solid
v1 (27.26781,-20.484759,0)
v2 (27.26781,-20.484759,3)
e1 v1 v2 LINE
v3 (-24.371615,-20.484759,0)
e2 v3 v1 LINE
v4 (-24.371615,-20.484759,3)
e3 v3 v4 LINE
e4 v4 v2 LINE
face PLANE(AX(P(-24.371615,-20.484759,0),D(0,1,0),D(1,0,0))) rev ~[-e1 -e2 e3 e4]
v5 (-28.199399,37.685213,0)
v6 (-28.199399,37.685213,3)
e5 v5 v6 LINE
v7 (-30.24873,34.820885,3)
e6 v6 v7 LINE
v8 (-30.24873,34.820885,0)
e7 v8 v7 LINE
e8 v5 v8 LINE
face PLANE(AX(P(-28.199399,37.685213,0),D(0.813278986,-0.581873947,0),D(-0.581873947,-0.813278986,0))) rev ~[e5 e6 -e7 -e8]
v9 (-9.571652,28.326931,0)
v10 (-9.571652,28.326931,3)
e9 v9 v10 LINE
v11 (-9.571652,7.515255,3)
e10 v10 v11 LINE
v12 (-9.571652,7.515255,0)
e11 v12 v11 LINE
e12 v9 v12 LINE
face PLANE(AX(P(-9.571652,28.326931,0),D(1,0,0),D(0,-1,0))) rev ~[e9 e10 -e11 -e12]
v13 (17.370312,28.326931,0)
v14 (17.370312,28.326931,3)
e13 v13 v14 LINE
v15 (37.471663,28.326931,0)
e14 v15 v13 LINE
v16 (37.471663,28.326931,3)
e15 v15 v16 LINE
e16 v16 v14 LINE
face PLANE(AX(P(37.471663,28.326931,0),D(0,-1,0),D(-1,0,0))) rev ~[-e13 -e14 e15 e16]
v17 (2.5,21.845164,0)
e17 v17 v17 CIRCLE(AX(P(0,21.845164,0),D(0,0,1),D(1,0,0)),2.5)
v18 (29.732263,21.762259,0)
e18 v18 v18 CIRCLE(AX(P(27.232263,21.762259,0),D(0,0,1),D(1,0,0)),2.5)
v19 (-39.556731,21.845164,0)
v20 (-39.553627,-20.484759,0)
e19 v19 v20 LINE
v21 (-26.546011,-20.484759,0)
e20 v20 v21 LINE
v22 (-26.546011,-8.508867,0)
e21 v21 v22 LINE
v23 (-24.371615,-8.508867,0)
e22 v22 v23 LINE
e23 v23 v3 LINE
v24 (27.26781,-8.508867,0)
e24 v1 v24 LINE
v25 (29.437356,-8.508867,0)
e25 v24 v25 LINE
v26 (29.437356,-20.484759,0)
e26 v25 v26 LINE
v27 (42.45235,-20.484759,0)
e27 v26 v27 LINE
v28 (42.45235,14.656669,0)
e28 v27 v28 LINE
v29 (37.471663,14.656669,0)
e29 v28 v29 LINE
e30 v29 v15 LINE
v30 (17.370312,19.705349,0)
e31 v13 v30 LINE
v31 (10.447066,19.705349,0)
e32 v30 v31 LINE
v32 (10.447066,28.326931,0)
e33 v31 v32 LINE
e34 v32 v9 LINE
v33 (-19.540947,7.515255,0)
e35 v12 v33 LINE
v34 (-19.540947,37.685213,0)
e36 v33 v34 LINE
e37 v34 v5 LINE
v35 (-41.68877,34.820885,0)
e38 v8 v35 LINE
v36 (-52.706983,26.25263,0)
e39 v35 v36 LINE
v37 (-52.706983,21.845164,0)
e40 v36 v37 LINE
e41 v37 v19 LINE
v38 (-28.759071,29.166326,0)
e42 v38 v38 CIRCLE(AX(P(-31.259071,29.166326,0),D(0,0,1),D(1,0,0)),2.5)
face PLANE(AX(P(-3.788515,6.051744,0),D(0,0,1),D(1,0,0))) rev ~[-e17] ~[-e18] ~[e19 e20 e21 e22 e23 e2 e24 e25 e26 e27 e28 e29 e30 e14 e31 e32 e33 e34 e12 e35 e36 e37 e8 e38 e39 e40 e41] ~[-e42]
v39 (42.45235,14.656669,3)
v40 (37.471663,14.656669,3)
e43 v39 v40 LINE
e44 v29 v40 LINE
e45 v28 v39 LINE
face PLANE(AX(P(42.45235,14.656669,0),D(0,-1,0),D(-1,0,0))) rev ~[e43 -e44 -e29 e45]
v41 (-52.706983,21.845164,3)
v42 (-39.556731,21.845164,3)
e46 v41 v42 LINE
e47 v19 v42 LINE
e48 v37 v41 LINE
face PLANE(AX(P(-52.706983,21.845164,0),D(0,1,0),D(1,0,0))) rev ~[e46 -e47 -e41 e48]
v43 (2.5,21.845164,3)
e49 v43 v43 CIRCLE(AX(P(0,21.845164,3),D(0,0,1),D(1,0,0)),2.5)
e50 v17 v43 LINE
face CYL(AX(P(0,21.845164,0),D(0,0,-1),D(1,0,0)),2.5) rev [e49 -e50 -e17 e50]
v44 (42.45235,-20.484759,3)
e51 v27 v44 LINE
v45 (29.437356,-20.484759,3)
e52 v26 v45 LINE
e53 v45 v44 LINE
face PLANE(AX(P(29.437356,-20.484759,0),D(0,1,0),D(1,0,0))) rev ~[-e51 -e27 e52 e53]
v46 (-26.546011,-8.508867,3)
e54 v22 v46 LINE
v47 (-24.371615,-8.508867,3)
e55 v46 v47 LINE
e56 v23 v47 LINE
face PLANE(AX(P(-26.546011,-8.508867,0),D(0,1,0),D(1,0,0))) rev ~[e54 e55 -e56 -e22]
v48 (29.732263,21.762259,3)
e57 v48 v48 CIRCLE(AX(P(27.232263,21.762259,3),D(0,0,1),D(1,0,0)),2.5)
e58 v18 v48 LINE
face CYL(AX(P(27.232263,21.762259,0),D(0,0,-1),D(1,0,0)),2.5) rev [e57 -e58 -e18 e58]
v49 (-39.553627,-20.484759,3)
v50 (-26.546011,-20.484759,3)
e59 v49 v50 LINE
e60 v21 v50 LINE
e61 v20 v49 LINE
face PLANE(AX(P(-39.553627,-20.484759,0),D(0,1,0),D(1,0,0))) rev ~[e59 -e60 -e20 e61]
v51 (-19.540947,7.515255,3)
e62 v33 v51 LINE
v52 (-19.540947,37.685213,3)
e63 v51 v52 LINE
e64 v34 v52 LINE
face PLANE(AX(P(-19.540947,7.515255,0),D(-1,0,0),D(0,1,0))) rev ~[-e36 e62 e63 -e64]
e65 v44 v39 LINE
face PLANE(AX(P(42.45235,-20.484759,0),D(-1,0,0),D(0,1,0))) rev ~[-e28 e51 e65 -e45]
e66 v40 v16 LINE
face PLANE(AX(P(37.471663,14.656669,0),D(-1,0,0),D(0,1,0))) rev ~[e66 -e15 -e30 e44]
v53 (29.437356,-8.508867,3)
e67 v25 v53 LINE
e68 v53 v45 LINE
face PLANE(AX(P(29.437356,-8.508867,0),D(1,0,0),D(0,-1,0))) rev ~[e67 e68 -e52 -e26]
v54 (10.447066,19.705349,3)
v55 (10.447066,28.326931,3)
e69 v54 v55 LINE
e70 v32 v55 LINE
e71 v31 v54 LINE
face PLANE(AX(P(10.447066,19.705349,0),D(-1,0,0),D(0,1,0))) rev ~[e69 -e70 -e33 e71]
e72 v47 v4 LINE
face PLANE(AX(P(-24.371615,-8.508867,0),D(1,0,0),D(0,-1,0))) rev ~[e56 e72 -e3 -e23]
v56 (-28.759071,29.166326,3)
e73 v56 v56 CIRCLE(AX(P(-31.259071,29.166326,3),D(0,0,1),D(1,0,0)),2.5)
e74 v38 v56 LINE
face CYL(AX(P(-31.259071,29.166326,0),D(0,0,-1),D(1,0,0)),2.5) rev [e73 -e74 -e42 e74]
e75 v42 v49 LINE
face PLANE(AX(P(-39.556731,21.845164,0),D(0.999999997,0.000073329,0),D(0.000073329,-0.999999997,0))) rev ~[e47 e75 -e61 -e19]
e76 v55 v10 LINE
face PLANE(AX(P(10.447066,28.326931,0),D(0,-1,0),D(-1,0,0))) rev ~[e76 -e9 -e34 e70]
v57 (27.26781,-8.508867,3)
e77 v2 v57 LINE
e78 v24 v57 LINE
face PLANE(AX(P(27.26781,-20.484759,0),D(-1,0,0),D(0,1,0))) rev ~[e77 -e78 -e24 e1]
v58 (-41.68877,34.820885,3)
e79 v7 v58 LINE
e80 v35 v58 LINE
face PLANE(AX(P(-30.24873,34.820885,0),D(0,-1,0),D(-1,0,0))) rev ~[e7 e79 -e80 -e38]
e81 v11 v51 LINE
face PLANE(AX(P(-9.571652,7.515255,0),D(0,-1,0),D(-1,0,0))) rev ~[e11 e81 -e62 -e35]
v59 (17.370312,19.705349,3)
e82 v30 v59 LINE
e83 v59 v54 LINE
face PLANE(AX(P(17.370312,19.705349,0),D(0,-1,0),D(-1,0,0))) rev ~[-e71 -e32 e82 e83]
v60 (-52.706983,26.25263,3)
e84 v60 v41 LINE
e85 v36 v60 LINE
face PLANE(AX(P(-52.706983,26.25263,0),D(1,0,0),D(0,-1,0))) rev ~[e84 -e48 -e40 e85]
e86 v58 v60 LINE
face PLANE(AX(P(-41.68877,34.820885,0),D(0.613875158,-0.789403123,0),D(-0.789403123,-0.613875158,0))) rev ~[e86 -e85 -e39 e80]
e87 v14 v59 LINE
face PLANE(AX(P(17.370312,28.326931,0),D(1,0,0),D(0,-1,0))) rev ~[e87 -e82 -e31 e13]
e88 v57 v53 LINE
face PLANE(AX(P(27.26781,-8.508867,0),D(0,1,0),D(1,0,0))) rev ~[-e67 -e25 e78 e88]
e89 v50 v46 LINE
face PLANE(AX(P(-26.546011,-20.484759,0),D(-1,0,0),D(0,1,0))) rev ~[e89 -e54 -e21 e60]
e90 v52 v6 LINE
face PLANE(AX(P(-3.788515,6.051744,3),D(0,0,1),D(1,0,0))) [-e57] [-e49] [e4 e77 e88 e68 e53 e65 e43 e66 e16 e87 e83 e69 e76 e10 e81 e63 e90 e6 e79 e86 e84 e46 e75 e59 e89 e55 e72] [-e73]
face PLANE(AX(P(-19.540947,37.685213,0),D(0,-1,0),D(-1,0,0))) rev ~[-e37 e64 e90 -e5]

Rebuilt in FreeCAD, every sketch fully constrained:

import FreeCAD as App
import Part
import Sketcher

V = App.Vector
Q = App.Units.Quantity


def add_polygon(sketch, points):
    """Adds a closed chain of lines whose ends are joined by coincident constraints."""
    first, n = sketch.GeometryCount, len(points)
    for a, b in zip(points, points[1:] + points[:1]):
        sketch.addGeometry(Part.LineSegment(App.Vector(*a, 0), App.Vector(*b, 0)), False)
    for i in range(n):
        sketch.addConstraint(Sketcher.Constraint("Coincident", first + i, 2, first + (i + 1) % n, 1))

doc = App.newDocument("Part")
body = doc.addObject("PartDesign::Body", "Body")

# Sketch on XY plane
sketch1 = body.newObject("Sketcher::SketchObject", "Sketch")
sketch1.AttachmentSupport = (doc.getObject("XY_Plane"), [""])
sketch1.MapMode = "FlatFace"
add_polygon(sketch1, [(-39.6, 21.8), (-39.6, -20.5), (-26.5, -20.5), (-26.5, -8.5), (-24.4, -8.5), (-24.4, -20.5), (27.3, -20.5), (27.3, -8.5), (29.4, -8.5), (29.4, -20.5), (42.5, -20.5), (42.5, 14.7), (37.5, 14.7), (37.5, 28.3), (17.4, 28.3), (17.4, 19.7), (10.4, 19.7), (10.4, 28.3), (-9.6, 28.3), (-9.6, 7.5), (-19.5, 7.5), (-19.5, 37.7), (-28.2, 37.7), (-30.2, 34.8), (-41.7, 34.8), (-52.7, 26.3), (-52.7, 21.8)])  # lines 0-26
sketch1.addGeometry(Part.Circle(V(0, 21.8, 0), V(0, 0, 1), 2.5), False)  # 27
sketch1.addGeometry(Part.Circle(V(27.2, 21.8, 0), V(0, 0, 1), 2.5), False)  # 28
sketch1.addGeometry(Part.Circle(V(-31.3, 29.2, 0), V(0, 0, 1), 2.5), False)  # 29
sketch1.addConstraint([
    Sketcher.Constraint("Horizontal", 1),
    Sketcher.Constraint("Vertical", 2),
    Sketcher.Constraint("Horizontal", 3),
    Sketcher.Constraint("Vertical", 4),
    Sketcher.Constraint("Horizontal", 5),
    Sketcher.Constraint("Vertical", 6),
    Sketcher.Constraint("Horizontal", 7),
    Sketcher.Constraint("Vertical", 8),
    Sketcher.Constraint("Horizontal", 9),
    Sketcher.Constraint("Vertical", 10),
    Sketcher.Constraint("Horizontal", 11),
    Sketcher.Constraint("Vertical", 12),
    Sketcher.Constraint("Horizontal", 13),
    Sketcher.Constraint("Vertical", 14),
    Sketcher.Constraint("Horizontal", 15),
    Sketcher.Constraint("Vertical", 16),
    Sketcher.Constraint("Horizontal", 17),
    Sketcher.Constraint("Vertical", 18),
    Sketcher.Constraint("Horizontal", 19),
    Sketcher.Constraint("Vertical", 20),
    Sketcher.Constraint("Horizontal", 21),
    Sketcher.Constraint("Horizontal", 23),
    Sketcher.Constraint("Vertical", 25),
    Sketcher.Constraint("Horizontal", 26),
    Sketcher.Constraint("Equal", 27, 28),
    Sketcher.Constraint("Equal", 28, 29),
    Sketcher.Constraint("PointOnObject", 27, 3, -2),
    Sketcher.Constraint("Horizontal", 1, 2, 4, 2),
    Sketcher.Constraint("Horizontal", 3, 2, 6, 2),
    Sketcher.Constraint("Horizontal", 5, 2, 8, 2),
    Sketcher.Constraint("Horizontal", 13, 2, 16, 2),
    Sketcher.Constraint("Horizontal", 27, 3, 25, 2),
    Sketcher.Constraint("Diameter", 27, Q("5 mm")),
    Sketcher.Constraint("DistanceX", 26, 2, 22, 2, Q("9.308001 mm")),
    Sketcher.Constraint("DistanceX", 13, 2, 13, 1, Q("20.101351 mm")),
    Sketcher.Constraint("DistanceX", 17, 2, 17, 1, Q("20.018718 mm")),
    Sketcher.Constraint("DistanceX", 23, 2, 23, 1, Q("11.44004 mm")),
    Sketcher.Constraint("DistanceY", 10, 1, 10, 2, Q("35.141428 mm")),
    Sketcher.Constraint("DistanceY", 12, 1, 12, 2, Q("13.670262 mm")),
    Sketcher.Constraint("DistanceX", 21, 2, -1, 1, Q("28.199399 mm")),
    Sketcher.Constraint("DistanceX", 28, 3, 11, 2, Q("10.2394 mm")),
    Sketcher.Constraint("DistanceX", 23, 2, 29, 3, Q("10.429699 mm")),
    Sketcher.Constraint("Distance", 22, Q("3.52195 mm")),
    Sketcher.Constraint("Distance", 24, Q("13.957651 mm")),
    Sketcher.Constraint("DistanceX", 1, 1, 1, 2, Q("13.007616 mm")),
    Sketcher.Constraint("DistanceX", 3, 1, 3, 2, Q("2.174396 mm")),
    Sketcher.Constraint("DistanceX", 5, 1, 5, 2, Q("51.639425 mm")),
    Sketcher.Constraint("DistanceX", 7, 1, 7, 2, Q("2.169546 mm")),
    Sketcher.Constraint("DistanceX", 9, 1, 9, 2, Q("13.014994 mm")),
    Sketcher.Constraint("DistanceX", 11, 2, 11, 1, Q("4.980687 mm")),
    Sketcher.Constraint("DistanceX", 15, 2, 15, 1, Q("6.923246 mm")),
    Sketcher.Constraint("DistanceX", 19, 2, 19, 1, Q("9.969295 mm")),
    Sketcher.Constraint("DistanceX", 21, 2, 21, 1, Q("8.658452 mm")),
    Sketcher.Constraint("DistanceX", 26, 1, 26, 2, Q("13.150252 mm")),
    Sketcher.Constraint("DistanceY", 2, 1, 2, 2, Q("11.975892 mm")),
    Sketcher.Constraint("DistanceY", 14, 2, 14, 1, Q("8.621582 mm")),
    Sketcher.Constraint("DistanceY", 18, 2, 18, 1, Q("20.811676 mm")),
    Sketcher.Constraint("DistanceY", 20, 1, 20, 2, Q("30.169958 mm")),
    Sketcher.Constraint("DistanceY", 25, 2, 25, 1, Q("4.407466 mm")),
    Sketcher.Constraint("DistanceY", -1, 1, 28, 3, Q("21.762259 mm")),
    Sketcher.Constraint("DistanceX", 29, 3, -1, 1, Q("31.259071 mm")),
    Sketcher.Constraint("DistanceY", 0, 2, -1, 1, Q("20.484759 mm")),
    Sketcher.Constraint("DistanceY", 29, 3, 22, 2, Q("5.654559 mm")),
])
pad1 = body.newObject("PartDesign::Pad", "Pad")
pad1.Profile = sketch1
pad1.Length = 3

doc.recompute()
